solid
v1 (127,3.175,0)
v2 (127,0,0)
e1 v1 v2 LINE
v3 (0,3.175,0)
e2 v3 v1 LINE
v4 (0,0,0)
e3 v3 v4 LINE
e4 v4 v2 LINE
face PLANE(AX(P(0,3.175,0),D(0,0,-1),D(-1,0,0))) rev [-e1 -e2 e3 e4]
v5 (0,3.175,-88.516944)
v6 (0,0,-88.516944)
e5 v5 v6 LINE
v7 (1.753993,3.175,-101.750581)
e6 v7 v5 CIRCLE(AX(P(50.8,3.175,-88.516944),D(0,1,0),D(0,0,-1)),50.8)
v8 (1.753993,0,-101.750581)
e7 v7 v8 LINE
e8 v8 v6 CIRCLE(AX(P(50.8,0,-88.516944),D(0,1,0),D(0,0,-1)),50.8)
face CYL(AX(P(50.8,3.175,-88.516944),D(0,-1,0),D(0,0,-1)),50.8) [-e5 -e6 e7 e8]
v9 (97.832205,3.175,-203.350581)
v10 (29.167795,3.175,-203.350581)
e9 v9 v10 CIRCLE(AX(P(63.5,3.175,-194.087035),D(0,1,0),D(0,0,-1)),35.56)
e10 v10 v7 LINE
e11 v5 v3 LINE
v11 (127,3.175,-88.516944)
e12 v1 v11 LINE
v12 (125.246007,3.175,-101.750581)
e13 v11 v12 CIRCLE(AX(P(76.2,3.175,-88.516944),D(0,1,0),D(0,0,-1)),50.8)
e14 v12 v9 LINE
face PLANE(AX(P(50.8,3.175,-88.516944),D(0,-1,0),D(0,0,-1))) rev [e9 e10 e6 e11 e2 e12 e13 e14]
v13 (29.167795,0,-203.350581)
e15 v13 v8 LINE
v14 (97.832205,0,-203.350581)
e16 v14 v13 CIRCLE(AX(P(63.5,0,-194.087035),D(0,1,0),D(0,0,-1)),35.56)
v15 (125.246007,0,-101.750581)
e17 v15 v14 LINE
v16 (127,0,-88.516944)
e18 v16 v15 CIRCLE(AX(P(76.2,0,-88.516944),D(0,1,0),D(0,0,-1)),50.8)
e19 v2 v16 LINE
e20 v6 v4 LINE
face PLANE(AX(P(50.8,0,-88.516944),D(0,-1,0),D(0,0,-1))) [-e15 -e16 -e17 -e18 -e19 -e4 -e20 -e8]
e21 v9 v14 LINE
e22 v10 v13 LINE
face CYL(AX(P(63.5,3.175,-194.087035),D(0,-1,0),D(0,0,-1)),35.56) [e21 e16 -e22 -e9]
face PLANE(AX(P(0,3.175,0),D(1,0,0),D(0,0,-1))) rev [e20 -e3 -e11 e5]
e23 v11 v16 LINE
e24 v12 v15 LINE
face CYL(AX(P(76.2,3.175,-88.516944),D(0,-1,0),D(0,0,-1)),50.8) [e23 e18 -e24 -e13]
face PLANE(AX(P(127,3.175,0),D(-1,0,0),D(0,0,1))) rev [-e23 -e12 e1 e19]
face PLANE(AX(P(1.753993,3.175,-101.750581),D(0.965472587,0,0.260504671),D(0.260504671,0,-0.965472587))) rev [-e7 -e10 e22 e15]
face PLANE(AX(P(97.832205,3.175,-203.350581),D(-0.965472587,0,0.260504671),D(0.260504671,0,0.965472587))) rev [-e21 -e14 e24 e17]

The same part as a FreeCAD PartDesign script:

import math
import FreeCAD as App
import Part
import Sketcher
Q = App.Units.Quantity

doc = App.newDocument("Part")
params = doc.addObject("Spreadsheet::Sheet", "Params")
for row, (alias, value) in enumerate([
    ("sketch1_radius", "2 in"),
    ("sketch1_radius2", "1.4 in"),
    ("sketch1_width", "5 in"),
    ("pad1_length", "0.125 in"),
], start=1):
    params.set(f"A{row}", alias)
    params.set(f"B{row}", "=" + value)
    params.setAlias(f"B{row}", alias)

body = doc.addObject("PartDesign::Body", "Body")

sketch1 = body.newObject("Sketcher::SketchObject", "Sketch")
sketch1.AttachmentSupport = (doc.getObject("XZ_Plane"), [""])
sketch1.MapMode = "FlatFace"
sketch1.addGeometry([
    Part.LineSegment(App.Vector(0, 0, 0), App.Vector(127, 0, 0)),
    Part.LineSegment(App.Vector(127, 0, 0), App.Vector(127, -89, 0)),
    Part.ArcOfCircle(Part.Circle(App.Vector(76, -89, 0), App.Vector(0, 0, 1), 51), math.radians(-15.1), math.radians(0)),
    Part.LineSegment(App.Vector(125, -102, 0), App.Vector(98, -203, 0)),
    Part.ArcOfCircle(Part.Circle(App.Vector(64, -194, 0), App.Vector(0, 0, 1), 36), math.radians(-165), math.radians(-15)),
    Part.LineSegment(App.Vector(29, -203, 0), App.Vector(2, -102, 0)),
    Part.ArcOfCircle(Part.Circle(App.Vector(51, -89, 0), App.Vector(0, 0, 1), 51), math.radians(180), math.radians(195.1)),
    Part.LineSegment(App.Vector(0, -89, 0), App.Vector(0, 0, 0)),
], False)
sketch1.addConstraint([
    Sketcher.Constraint("Coincident", 0, 2, 1, 1),
    Sketcher.Constraint("Tangent", 1, 2, 2, 2),
    Sketcher.Constraint("Tangent", 2, 1, 3, 1),
    Sketcher.Constraint("Tangent", 3, 2, 4, 2),
    Sketcher.Constraint("Tangent", 4, 1, 5, 1),
    Sketcher.Constraint("Tangent", 5, 2, 6, 2),
    Sketcher.Constraint("Tangent", 6, 1, 7, 1),
    Sketcher.Constraint("Coincident", 7, 2, 0, 1),
    Sketcher.Constraint("Horizontal", 0),
    Sketcher.Constraint("Vertical", 1),
    Sketcher.Constraint("Vertical", 7),
    Sketcher.Constraint("Coincident", 7, 2, -1, 1),
    Sketcher.Constraint("Equal", 2, 6),
    Sketcher.Constraint("Horizontal", 2, 3, 6, 3),
    Sketcher.Constraint("Horizontal", 3, 2, 4, 1),
    Sketcher.Constraint("Radius", 2, Q("2 in")),
    Sketcher.Constraint("Radius", 4, Q("1.4 in")),
    Sketcher.Constraint("DistanceX", 0, 1, 0, 2, Q("5 in")),
    Sketcher.Constraint("DistanceY", 3, 2, 2, 1, Q("4 in")),
    Sketcher.Constraint("DistanceY", 1, 2, 1, 1, Q("88.516944 mm")),
])
sketch1.setExpression("Constraints[15]", "Params.sketch1_radius")
sketch1.setExpression("Constraints[16]", "Params.sketch1_radius2")
sketch1.setExpression("Constraints[17]", "Params.sketch1_width")
pad1 = body.newObject("PartDesign::Pad", "Pad")
pad1.Profile = sketch1
pad1.setExpression("Length", "Params.pad1_length")
pad1.Reversed = True

doc.recompute()
